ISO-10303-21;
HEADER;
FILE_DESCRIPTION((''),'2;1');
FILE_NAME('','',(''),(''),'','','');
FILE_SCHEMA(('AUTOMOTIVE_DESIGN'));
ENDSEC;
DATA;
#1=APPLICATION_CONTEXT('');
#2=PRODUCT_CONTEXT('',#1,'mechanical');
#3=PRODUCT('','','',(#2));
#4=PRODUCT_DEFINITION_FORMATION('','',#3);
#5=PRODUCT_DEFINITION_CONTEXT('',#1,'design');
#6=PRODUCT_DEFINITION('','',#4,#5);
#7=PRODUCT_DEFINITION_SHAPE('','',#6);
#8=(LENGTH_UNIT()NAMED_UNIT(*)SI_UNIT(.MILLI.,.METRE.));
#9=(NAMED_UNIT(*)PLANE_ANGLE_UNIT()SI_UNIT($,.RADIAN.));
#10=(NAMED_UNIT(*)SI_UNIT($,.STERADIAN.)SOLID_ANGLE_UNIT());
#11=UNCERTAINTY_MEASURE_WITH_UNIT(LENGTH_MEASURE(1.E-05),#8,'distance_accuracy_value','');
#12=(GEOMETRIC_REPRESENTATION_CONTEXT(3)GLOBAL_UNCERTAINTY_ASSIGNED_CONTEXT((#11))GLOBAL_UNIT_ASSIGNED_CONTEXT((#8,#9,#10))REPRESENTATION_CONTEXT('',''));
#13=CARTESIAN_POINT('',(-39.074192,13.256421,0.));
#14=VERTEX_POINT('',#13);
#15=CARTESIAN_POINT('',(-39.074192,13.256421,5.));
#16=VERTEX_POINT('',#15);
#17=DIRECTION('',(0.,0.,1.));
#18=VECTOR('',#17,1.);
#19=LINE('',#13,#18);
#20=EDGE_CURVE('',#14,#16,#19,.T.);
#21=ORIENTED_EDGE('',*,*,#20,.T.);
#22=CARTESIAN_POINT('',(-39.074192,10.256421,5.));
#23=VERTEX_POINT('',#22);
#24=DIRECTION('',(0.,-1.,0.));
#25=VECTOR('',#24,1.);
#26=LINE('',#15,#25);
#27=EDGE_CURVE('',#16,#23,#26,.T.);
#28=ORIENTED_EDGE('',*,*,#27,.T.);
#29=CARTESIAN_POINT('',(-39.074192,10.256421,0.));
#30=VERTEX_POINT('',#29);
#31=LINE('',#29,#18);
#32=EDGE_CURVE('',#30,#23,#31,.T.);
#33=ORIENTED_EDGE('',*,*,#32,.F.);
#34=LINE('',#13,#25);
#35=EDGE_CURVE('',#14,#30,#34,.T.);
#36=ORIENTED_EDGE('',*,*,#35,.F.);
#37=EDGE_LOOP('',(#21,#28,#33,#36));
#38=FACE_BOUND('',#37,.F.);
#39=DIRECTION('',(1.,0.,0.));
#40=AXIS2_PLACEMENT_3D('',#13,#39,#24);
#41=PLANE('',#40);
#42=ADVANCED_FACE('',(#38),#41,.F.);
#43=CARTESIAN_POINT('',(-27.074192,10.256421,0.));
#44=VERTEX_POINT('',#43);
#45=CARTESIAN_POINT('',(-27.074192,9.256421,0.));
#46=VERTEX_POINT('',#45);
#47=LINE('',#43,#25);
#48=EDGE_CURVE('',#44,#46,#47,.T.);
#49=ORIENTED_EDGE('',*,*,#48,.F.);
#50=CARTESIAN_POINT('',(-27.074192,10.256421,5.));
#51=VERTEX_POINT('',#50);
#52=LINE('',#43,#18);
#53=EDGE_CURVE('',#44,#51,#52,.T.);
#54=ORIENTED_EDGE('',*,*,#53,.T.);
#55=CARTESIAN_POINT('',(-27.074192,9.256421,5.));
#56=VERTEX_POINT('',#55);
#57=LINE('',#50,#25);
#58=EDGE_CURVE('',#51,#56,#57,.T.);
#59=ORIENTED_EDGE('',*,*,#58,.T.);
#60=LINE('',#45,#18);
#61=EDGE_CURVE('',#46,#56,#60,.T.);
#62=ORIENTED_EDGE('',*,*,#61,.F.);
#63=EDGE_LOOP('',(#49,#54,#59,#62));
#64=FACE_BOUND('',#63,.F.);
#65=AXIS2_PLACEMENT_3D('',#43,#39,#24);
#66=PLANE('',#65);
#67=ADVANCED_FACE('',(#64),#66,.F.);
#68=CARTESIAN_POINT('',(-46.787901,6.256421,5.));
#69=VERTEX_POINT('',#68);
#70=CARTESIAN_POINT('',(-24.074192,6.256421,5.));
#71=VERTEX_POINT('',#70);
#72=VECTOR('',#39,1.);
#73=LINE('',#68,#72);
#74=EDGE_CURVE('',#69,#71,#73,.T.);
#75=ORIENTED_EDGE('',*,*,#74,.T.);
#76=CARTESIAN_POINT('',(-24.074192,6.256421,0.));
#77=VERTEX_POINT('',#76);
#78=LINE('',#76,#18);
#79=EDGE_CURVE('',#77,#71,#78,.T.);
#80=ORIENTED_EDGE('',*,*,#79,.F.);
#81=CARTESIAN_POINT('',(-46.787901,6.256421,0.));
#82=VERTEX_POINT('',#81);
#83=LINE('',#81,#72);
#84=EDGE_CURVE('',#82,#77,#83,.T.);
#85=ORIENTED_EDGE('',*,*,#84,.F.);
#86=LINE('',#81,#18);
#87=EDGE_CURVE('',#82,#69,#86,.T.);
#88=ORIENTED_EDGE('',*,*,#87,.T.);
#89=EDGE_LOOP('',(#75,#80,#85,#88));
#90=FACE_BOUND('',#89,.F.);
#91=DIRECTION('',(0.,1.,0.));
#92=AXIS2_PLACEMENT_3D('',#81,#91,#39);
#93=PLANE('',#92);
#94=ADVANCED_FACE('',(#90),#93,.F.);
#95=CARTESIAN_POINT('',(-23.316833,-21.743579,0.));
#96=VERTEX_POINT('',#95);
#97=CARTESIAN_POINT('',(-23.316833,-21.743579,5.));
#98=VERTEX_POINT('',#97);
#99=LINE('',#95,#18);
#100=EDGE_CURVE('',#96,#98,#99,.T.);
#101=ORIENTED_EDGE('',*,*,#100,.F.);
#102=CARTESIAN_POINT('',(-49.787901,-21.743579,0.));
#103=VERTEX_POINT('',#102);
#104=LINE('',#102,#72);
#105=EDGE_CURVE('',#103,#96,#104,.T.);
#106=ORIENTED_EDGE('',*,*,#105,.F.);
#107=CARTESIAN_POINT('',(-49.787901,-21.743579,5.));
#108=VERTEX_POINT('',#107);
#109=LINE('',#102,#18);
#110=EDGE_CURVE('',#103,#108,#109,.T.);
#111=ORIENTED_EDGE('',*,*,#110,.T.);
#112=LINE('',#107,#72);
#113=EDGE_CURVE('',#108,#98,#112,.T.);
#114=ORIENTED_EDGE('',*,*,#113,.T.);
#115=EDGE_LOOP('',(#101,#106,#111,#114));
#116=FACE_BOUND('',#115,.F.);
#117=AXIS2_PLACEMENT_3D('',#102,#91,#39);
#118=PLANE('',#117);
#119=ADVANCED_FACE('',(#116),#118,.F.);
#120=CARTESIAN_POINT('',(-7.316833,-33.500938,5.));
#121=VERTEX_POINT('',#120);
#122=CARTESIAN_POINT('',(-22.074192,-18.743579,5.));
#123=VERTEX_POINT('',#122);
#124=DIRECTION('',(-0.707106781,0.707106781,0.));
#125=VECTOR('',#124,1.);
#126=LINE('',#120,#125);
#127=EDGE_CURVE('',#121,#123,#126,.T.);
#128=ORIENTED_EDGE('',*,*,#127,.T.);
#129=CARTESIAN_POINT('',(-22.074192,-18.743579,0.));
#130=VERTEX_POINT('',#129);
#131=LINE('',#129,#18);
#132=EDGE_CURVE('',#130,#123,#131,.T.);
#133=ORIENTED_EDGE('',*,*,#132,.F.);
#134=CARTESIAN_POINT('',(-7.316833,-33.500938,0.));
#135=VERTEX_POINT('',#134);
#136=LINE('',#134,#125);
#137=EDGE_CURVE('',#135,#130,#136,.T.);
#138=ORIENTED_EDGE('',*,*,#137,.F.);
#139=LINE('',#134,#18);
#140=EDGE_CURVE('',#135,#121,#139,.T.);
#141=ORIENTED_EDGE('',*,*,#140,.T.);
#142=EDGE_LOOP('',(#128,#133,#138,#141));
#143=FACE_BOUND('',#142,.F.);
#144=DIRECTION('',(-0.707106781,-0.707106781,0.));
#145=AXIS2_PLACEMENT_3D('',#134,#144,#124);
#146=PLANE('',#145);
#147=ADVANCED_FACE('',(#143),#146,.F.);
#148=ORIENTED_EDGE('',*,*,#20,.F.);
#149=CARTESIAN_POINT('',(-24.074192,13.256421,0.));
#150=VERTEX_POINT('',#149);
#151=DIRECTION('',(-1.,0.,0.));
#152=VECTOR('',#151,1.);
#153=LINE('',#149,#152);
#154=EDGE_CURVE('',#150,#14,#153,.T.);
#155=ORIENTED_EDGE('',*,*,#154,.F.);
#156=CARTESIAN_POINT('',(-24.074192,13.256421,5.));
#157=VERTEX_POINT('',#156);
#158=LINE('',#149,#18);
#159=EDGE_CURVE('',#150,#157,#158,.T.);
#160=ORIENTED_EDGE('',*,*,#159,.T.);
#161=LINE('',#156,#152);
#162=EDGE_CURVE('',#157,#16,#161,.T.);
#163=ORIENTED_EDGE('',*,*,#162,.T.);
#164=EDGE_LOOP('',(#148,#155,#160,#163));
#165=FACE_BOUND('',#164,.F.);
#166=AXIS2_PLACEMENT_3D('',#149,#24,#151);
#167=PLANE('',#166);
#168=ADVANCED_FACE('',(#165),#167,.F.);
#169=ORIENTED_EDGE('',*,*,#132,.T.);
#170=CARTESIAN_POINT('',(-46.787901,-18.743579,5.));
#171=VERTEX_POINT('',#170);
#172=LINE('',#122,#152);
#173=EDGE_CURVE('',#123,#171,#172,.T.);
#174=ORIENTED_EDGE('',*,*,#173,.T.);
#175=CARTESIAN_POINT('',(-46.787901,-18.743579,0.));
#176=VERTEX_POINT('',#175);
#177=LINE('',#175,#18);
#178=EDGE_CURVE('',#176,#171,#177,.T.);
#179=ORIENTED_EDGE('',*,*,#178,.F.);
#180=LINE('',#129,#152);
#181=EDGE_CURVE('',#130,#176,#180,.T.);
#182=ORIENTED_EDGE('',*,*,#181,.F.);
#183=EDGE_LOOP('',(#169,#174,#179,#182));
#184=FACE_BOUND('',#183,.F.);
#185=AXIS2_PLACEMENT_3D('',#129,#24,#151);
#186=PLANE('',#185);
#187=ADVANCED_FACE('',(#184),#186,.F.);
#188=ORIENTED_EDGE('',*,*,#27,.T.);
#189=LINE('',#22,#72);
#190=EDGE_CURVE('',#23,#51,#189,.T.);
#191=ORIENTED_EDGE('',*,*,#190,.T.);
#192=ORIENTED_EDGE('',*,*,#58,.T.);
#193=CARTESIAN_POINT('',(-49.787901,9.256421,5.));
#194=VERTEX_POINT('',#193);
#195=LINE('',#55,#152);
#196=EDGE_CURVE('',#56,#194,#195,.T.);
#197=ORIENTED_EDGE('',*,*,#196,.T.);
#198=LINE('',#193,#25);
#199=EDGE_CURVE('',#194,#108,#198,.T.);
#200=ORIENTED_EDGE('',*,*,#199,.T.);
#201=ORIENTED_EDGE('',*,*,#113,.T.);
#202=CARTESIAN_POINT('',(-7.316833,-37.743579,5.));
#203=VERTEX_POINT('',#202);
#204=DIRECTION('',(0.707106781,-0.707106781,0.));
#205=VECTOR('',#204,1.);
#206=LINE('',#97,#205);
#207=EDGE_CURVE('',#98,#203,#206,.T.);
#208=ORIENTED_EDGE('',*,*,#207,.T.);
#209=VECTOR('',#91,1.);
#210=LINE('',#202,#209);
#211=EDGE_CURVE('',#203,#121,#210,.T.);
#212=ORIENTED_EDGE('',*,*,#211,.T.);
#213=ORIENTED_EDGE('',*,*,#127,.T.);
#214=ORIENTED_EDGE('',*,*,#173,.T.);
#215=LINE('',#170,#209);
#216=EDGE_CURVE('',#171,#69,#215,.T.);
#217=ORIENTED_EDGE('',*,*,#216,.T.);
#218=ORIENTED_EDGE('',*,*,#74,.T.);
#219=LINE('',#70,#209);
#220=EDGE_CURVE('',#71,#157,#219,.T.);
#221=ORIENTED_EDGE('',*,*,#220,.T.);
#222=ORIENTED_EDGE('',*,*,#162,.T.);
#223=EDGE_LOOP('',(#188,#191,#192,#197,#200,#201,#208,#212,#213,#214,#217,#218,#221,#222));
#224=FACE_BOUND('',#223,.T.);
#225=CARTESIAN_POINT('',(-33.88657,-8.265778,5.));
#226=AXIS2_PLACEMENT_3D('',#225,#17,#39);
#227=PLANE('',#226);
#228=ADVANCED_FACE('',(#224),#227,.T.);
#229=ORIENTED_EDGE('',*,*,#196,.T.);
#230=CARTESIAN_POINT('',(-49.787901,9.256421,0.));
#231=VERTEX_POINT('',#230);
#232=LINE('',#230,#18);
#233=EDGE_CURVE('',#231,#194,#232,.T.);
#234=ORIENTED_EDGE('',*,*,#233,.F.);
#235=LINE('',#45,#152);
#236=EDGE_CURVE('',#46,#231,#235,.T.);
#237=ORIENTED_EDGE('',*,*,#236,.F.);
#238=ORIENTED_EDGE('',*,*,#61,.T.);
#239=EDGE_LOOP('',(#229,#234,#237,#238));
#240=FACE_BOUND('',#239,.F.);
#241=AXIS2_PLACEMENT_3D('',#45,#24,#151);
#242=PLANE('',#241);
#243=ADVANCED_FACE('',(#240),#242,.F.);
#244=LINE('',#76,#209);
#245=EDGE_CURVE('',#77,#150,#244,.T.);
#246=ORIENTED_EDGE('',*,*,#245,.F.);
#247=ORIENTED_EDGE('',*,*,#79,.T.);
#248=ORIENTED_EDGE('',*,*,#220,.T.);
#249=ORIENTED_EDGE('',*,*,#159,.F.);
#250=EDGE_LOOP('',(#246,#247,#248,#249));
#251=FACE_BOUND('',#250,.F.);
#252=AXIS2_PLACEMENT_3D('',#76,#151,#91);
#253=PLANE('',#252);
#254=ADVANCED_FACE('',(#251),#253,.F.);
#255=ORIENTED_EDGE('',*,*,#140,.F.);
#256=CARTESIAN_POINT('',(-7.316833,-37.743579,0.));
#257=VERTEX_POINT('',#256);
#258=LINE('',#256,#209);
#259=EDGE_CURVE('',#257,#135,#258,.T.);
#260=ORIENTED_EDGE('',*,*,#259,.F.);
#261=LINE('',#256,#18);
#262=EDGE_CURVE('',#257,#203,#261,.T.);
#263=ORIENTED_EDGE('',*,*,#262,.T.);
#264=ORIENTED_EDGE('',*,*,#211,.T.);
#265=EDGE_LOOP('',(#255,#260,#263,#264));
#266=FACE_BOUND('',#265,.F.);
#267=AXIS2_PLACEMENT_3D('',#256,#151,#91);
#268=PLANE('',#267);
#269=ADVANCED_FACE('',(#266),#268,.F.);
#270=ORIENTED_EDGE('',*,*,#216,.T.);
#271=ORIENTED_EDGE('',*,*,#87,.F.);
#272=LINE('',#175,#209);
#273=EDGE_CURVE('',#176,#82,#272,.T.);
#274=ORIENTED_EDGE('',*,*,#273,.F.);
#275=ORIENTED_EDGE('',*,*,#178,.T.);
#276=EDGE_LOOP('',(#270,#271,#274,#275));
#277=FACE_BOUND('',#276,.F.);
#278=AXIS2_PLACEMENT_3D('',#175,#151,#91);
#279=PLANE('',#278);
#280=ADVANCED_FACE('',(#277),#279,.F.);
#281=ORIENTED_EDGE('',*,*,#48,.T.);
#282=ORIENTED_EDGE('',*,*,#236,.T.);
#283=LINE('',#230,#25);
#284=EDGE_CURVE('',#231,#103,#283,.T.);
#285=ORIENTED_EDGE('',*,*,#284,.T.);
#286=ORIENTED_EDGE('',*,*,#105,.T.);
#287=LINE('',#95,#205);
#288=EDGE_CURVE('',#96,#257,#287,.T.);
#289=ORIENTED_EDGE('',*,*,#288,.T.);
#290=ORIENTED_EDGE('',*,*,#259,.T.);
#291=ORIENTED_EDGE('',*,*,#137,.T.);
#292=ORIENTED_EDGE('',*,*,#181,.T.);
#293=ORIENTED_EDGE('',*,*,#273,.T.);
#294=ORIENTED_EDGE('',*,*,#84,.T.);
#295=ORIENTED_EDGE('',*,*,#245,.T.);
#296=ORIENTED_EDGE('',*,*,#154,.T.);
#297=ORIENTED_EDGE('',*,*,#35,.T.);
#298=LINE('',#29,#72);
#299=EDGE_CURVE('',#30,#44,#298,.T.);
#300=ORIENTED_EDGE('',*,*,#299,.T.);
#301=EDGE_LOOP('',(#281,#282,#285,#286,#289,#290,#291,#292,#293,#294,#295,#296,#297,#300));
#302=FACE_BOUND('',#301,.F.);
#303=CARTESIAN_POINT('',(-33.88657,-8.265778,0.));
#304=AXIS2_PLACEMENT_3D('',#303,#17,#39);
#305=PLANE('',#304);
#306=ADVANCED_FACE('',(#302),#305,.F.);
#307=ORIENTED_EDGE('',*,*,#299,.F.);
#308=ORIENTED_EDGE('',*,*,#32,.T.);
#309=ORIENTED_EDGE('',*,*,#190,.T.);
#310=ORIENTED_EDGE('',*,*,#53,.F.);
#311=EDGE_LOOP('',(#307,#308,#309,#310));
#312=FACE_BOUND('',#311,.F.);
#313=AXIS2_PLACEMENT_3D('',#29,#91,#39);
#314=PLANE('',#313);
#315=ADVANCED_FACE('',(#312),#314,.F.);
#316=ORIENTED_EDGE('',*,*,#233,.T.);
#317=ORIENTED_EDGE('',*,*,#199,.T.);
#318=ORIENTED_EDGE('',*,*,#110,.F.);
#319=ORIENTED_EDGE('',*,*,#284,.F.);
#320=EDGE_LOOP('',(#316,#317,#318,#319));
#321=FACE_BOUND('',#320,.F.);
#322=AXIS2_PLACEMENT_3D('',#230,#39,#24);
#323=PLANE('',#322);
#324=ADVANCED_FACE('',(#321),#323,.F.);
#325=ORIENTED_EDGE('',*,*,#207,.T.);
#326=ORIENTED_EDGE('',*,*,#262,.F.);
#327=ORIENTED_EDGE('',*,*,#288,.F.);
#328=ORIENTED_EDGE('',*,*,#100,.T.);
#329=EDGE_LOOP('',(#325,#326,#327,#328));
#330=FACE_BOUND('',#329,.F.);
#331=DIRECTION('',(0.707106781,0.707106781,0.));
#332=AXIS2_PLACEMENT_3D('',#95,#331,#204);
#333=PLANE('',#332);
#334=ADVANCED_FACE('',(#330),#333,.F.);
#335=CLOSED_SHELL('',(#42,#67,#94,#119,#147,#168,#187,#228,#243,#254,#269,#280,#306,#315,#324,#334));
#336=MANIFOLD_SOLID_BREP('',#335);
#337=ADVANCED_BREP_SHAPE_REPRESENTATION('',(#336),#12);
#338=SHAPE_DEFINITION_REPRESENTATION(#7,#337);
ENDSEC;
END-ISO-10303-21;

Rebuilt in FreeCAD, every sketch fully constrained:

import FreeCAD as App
import Part
import Sketcher

V = App.Vector
Q = App.Units.Quantity

doc = App.newDocument("Part")
params = doc.addObject("Spreadsheet::Sheet", "Params")
for row, (alias, value) in enumerate([
    ("sketch1_width", "15 mm"),
    ("sketch1_width2", "12 mm"),
    ("sketch1_height", "7 mm"),
    ("sketch1_height2", "3 mm"),
    ("sketch1_height3", "1 mm"),
    ("pad1_length", "5 mm"),
], start=1):
    params.set(f"A{row}", alias)
    params.set(f"B{row}", "=" + value)
    params.setAlias(f"B{row}", alias)

body = doc.addObject("PartDesign::Body", "Body")

sketch1 = body.newObject("Sketcher::SketchObject", "Sketch")
sketch1.AttachmentSupport = (doc.getObject("XY_Plane"), [""])
sketch1.MapMode = "FlatFace"
sketch1.addGeometry([
    Part.LineSegment(V(-24.1, 6.3, 0), V(-24.1, 13.3, 0)),
    Part.LineSegment(V(-24.1, 13.3, 0), V(-39.1, 13.3, 0)),
    Part.LineSegment(V(-39.1, 13.3, 0), V(-39.1, 10.3, 0)),
    Part.LineSegment(V(-39.1, 10.3, 0), V(-27.1, 10.3, 0)),
    Part.LineSegment(V(-27.1, 10.3, 0), V(-27.1, 9.3, 0)),
    Part.LineSegment(V(-27.1, 9.3, 0), V(-49.8, 9.3, 0)),
    Part.LineSegment(V(-49.8, 9.3, 0), V(-49.8, -21.7, 0)),
    Part.LineSegment(V(-49.8, -21.7, 0), V(-23.3, -21.7, 0)),
    Part.LineSegment(V(-23.3, -21.7, 0), V(-7.3, -37.7, 0)),
    Part.LineSegment(V(-7.3, -37.7, 0), V(-7.3, -33.5, 0)),
    Part.LineSegment(V(-7.3, -33.5, 0), V(-22.1, -18.7, 0)),
    Part.LineSegment(V(-22.1, -18.7, 0), V(-46.8, -18.7, 0)),
    Part.LineSegment(V(-46.8, -18.7, 0), V(-46.8, 6.3, 0)),
    Part.LineSegment(V(-46.8, 6.3, 0), V(-24.1, 6.3, 0)),
], False)
sketch1.addConstraint([
    Sketcher.Constraint("Coincident", 0, 2, 1, 1),
    Sketcher.Constraint("Coincident", 1, 2, 2, 1),
    Sketcher.Constraint("Coincident", 2, 2, 3, 1),
    Sketcher.Constraint("Coincident", 3, 2, 4, 1),
    Sketcher.Constraint("Coincident", 4, 2, 5, 1),
    Sketcher.Constraint("Coincident", 5, 2, 6, 1),
    Sketcher.Constraint("Coincident", 6, 2, 7, 1),
    Sketcher.Constraint("Coincident", 7, 2, 8, 1),
    Sketcher.Constraint("Coincident", 8, 2, 9, 1),
    Sketcher.Constraint("Coincident", 9, 2, 10, 1),
    Sketcher.Constraint("Coincident", 10, 2, 11, 1),
    Sketcher.Constraint("Coincident", 11, 2, 12, 1),
    Sketcher.Constraint("Coincident", 12, 2, 13, 1),
    Sketcher.Constraint("Coincident", 13, 2, 0, 1),
    Sketcher.Constraint("Vertical", 0),
    Sketcher.Constraint("Horizontal", 1),
    Sketcher.Constraint("Vertical", 2),
    Sketcher.Constraint("Horizontal", 3),
    Sketcher.Constraint("Vertical", 4),
    Sketcher.Constraint("Horizontal", 5),
    Sketcher.Constraint("Vertical", 6),
    Sketcher.Constraint("Horizontal", 7),
    Sketcher.Constraint("Vertical", 9),
    Sketcher.Constraint("Horizontal", 11),
    Sketcher.Constraint("Vertical", 12),
    Sketcher.Constraint("Horizontal", 13),
    Sketcher.Constraint("Parallel", 8, 10),
    Sketcher.Constraint("Equal", 5, 13),
    Sketcher.Constraint("DistanceX", 1, 2, 1, 1, 15.0),
    Sketcher.Constraint("DistanceX", 3, 1, 3, 2, 12.0),
    Sketcher.Constraint("DistanceY", 0, 1, 0, 2, 7.0),
    Sketcher.Constraint("DistanceY", 2, 2, 2, 1, 3.0),
    Sketcher.Constraint("DistanceY", 4, 2, 4, 1, 1.0),
    Sketcher.Constraint("DistanceY", 6, 2, 6, 1, 31.0),
    Sketcher.Constraint("DistanceY", 12, 1, 12, 2, 25.0),
    Sketcher.Constraint("Angle", 8, Q("-45 deg")),
    Sketcher.Constraint("DistanceX", 7, 2, 8, 2, 16.0),
    Sketcher.Constraint("DistanceX", 4, 2, 10, 2, 5.0),
    Sketcher.Constraint("DistanceX", 5, 2, 5, 1, 22.713709),
    Sketcher.Constraint("DistanceY", 9, 1, 9, 2, 4.242641),
    Sketcher.Constraint("DistanceX", 5, 2, -1, 1, 49.787901),
    Sketcher.Constraint("DistanceY", -1, 1, 0, 2, 13.256421),
])
sketch1.setExpression("Constraints[28]", "Params.sketch1_width")
sketch1.setExpression("Constraints[29]", "Params.sketch1_width2")
sketch1.setExpression("Constraints[30]", "Params.sketch1_height")
sketch1.setExpression("Constraints[31]", "Params.sketch1_height2")
sketch1.setExpression("Constraints[32]", "Params.sketch1_height3")
pad1 = body.newObject("PartDesign::Pad", "Pad")
pad1.Profile = sketch1
pad1.setExpression("Length", "Params.pad1_length")

doc.recompute()
